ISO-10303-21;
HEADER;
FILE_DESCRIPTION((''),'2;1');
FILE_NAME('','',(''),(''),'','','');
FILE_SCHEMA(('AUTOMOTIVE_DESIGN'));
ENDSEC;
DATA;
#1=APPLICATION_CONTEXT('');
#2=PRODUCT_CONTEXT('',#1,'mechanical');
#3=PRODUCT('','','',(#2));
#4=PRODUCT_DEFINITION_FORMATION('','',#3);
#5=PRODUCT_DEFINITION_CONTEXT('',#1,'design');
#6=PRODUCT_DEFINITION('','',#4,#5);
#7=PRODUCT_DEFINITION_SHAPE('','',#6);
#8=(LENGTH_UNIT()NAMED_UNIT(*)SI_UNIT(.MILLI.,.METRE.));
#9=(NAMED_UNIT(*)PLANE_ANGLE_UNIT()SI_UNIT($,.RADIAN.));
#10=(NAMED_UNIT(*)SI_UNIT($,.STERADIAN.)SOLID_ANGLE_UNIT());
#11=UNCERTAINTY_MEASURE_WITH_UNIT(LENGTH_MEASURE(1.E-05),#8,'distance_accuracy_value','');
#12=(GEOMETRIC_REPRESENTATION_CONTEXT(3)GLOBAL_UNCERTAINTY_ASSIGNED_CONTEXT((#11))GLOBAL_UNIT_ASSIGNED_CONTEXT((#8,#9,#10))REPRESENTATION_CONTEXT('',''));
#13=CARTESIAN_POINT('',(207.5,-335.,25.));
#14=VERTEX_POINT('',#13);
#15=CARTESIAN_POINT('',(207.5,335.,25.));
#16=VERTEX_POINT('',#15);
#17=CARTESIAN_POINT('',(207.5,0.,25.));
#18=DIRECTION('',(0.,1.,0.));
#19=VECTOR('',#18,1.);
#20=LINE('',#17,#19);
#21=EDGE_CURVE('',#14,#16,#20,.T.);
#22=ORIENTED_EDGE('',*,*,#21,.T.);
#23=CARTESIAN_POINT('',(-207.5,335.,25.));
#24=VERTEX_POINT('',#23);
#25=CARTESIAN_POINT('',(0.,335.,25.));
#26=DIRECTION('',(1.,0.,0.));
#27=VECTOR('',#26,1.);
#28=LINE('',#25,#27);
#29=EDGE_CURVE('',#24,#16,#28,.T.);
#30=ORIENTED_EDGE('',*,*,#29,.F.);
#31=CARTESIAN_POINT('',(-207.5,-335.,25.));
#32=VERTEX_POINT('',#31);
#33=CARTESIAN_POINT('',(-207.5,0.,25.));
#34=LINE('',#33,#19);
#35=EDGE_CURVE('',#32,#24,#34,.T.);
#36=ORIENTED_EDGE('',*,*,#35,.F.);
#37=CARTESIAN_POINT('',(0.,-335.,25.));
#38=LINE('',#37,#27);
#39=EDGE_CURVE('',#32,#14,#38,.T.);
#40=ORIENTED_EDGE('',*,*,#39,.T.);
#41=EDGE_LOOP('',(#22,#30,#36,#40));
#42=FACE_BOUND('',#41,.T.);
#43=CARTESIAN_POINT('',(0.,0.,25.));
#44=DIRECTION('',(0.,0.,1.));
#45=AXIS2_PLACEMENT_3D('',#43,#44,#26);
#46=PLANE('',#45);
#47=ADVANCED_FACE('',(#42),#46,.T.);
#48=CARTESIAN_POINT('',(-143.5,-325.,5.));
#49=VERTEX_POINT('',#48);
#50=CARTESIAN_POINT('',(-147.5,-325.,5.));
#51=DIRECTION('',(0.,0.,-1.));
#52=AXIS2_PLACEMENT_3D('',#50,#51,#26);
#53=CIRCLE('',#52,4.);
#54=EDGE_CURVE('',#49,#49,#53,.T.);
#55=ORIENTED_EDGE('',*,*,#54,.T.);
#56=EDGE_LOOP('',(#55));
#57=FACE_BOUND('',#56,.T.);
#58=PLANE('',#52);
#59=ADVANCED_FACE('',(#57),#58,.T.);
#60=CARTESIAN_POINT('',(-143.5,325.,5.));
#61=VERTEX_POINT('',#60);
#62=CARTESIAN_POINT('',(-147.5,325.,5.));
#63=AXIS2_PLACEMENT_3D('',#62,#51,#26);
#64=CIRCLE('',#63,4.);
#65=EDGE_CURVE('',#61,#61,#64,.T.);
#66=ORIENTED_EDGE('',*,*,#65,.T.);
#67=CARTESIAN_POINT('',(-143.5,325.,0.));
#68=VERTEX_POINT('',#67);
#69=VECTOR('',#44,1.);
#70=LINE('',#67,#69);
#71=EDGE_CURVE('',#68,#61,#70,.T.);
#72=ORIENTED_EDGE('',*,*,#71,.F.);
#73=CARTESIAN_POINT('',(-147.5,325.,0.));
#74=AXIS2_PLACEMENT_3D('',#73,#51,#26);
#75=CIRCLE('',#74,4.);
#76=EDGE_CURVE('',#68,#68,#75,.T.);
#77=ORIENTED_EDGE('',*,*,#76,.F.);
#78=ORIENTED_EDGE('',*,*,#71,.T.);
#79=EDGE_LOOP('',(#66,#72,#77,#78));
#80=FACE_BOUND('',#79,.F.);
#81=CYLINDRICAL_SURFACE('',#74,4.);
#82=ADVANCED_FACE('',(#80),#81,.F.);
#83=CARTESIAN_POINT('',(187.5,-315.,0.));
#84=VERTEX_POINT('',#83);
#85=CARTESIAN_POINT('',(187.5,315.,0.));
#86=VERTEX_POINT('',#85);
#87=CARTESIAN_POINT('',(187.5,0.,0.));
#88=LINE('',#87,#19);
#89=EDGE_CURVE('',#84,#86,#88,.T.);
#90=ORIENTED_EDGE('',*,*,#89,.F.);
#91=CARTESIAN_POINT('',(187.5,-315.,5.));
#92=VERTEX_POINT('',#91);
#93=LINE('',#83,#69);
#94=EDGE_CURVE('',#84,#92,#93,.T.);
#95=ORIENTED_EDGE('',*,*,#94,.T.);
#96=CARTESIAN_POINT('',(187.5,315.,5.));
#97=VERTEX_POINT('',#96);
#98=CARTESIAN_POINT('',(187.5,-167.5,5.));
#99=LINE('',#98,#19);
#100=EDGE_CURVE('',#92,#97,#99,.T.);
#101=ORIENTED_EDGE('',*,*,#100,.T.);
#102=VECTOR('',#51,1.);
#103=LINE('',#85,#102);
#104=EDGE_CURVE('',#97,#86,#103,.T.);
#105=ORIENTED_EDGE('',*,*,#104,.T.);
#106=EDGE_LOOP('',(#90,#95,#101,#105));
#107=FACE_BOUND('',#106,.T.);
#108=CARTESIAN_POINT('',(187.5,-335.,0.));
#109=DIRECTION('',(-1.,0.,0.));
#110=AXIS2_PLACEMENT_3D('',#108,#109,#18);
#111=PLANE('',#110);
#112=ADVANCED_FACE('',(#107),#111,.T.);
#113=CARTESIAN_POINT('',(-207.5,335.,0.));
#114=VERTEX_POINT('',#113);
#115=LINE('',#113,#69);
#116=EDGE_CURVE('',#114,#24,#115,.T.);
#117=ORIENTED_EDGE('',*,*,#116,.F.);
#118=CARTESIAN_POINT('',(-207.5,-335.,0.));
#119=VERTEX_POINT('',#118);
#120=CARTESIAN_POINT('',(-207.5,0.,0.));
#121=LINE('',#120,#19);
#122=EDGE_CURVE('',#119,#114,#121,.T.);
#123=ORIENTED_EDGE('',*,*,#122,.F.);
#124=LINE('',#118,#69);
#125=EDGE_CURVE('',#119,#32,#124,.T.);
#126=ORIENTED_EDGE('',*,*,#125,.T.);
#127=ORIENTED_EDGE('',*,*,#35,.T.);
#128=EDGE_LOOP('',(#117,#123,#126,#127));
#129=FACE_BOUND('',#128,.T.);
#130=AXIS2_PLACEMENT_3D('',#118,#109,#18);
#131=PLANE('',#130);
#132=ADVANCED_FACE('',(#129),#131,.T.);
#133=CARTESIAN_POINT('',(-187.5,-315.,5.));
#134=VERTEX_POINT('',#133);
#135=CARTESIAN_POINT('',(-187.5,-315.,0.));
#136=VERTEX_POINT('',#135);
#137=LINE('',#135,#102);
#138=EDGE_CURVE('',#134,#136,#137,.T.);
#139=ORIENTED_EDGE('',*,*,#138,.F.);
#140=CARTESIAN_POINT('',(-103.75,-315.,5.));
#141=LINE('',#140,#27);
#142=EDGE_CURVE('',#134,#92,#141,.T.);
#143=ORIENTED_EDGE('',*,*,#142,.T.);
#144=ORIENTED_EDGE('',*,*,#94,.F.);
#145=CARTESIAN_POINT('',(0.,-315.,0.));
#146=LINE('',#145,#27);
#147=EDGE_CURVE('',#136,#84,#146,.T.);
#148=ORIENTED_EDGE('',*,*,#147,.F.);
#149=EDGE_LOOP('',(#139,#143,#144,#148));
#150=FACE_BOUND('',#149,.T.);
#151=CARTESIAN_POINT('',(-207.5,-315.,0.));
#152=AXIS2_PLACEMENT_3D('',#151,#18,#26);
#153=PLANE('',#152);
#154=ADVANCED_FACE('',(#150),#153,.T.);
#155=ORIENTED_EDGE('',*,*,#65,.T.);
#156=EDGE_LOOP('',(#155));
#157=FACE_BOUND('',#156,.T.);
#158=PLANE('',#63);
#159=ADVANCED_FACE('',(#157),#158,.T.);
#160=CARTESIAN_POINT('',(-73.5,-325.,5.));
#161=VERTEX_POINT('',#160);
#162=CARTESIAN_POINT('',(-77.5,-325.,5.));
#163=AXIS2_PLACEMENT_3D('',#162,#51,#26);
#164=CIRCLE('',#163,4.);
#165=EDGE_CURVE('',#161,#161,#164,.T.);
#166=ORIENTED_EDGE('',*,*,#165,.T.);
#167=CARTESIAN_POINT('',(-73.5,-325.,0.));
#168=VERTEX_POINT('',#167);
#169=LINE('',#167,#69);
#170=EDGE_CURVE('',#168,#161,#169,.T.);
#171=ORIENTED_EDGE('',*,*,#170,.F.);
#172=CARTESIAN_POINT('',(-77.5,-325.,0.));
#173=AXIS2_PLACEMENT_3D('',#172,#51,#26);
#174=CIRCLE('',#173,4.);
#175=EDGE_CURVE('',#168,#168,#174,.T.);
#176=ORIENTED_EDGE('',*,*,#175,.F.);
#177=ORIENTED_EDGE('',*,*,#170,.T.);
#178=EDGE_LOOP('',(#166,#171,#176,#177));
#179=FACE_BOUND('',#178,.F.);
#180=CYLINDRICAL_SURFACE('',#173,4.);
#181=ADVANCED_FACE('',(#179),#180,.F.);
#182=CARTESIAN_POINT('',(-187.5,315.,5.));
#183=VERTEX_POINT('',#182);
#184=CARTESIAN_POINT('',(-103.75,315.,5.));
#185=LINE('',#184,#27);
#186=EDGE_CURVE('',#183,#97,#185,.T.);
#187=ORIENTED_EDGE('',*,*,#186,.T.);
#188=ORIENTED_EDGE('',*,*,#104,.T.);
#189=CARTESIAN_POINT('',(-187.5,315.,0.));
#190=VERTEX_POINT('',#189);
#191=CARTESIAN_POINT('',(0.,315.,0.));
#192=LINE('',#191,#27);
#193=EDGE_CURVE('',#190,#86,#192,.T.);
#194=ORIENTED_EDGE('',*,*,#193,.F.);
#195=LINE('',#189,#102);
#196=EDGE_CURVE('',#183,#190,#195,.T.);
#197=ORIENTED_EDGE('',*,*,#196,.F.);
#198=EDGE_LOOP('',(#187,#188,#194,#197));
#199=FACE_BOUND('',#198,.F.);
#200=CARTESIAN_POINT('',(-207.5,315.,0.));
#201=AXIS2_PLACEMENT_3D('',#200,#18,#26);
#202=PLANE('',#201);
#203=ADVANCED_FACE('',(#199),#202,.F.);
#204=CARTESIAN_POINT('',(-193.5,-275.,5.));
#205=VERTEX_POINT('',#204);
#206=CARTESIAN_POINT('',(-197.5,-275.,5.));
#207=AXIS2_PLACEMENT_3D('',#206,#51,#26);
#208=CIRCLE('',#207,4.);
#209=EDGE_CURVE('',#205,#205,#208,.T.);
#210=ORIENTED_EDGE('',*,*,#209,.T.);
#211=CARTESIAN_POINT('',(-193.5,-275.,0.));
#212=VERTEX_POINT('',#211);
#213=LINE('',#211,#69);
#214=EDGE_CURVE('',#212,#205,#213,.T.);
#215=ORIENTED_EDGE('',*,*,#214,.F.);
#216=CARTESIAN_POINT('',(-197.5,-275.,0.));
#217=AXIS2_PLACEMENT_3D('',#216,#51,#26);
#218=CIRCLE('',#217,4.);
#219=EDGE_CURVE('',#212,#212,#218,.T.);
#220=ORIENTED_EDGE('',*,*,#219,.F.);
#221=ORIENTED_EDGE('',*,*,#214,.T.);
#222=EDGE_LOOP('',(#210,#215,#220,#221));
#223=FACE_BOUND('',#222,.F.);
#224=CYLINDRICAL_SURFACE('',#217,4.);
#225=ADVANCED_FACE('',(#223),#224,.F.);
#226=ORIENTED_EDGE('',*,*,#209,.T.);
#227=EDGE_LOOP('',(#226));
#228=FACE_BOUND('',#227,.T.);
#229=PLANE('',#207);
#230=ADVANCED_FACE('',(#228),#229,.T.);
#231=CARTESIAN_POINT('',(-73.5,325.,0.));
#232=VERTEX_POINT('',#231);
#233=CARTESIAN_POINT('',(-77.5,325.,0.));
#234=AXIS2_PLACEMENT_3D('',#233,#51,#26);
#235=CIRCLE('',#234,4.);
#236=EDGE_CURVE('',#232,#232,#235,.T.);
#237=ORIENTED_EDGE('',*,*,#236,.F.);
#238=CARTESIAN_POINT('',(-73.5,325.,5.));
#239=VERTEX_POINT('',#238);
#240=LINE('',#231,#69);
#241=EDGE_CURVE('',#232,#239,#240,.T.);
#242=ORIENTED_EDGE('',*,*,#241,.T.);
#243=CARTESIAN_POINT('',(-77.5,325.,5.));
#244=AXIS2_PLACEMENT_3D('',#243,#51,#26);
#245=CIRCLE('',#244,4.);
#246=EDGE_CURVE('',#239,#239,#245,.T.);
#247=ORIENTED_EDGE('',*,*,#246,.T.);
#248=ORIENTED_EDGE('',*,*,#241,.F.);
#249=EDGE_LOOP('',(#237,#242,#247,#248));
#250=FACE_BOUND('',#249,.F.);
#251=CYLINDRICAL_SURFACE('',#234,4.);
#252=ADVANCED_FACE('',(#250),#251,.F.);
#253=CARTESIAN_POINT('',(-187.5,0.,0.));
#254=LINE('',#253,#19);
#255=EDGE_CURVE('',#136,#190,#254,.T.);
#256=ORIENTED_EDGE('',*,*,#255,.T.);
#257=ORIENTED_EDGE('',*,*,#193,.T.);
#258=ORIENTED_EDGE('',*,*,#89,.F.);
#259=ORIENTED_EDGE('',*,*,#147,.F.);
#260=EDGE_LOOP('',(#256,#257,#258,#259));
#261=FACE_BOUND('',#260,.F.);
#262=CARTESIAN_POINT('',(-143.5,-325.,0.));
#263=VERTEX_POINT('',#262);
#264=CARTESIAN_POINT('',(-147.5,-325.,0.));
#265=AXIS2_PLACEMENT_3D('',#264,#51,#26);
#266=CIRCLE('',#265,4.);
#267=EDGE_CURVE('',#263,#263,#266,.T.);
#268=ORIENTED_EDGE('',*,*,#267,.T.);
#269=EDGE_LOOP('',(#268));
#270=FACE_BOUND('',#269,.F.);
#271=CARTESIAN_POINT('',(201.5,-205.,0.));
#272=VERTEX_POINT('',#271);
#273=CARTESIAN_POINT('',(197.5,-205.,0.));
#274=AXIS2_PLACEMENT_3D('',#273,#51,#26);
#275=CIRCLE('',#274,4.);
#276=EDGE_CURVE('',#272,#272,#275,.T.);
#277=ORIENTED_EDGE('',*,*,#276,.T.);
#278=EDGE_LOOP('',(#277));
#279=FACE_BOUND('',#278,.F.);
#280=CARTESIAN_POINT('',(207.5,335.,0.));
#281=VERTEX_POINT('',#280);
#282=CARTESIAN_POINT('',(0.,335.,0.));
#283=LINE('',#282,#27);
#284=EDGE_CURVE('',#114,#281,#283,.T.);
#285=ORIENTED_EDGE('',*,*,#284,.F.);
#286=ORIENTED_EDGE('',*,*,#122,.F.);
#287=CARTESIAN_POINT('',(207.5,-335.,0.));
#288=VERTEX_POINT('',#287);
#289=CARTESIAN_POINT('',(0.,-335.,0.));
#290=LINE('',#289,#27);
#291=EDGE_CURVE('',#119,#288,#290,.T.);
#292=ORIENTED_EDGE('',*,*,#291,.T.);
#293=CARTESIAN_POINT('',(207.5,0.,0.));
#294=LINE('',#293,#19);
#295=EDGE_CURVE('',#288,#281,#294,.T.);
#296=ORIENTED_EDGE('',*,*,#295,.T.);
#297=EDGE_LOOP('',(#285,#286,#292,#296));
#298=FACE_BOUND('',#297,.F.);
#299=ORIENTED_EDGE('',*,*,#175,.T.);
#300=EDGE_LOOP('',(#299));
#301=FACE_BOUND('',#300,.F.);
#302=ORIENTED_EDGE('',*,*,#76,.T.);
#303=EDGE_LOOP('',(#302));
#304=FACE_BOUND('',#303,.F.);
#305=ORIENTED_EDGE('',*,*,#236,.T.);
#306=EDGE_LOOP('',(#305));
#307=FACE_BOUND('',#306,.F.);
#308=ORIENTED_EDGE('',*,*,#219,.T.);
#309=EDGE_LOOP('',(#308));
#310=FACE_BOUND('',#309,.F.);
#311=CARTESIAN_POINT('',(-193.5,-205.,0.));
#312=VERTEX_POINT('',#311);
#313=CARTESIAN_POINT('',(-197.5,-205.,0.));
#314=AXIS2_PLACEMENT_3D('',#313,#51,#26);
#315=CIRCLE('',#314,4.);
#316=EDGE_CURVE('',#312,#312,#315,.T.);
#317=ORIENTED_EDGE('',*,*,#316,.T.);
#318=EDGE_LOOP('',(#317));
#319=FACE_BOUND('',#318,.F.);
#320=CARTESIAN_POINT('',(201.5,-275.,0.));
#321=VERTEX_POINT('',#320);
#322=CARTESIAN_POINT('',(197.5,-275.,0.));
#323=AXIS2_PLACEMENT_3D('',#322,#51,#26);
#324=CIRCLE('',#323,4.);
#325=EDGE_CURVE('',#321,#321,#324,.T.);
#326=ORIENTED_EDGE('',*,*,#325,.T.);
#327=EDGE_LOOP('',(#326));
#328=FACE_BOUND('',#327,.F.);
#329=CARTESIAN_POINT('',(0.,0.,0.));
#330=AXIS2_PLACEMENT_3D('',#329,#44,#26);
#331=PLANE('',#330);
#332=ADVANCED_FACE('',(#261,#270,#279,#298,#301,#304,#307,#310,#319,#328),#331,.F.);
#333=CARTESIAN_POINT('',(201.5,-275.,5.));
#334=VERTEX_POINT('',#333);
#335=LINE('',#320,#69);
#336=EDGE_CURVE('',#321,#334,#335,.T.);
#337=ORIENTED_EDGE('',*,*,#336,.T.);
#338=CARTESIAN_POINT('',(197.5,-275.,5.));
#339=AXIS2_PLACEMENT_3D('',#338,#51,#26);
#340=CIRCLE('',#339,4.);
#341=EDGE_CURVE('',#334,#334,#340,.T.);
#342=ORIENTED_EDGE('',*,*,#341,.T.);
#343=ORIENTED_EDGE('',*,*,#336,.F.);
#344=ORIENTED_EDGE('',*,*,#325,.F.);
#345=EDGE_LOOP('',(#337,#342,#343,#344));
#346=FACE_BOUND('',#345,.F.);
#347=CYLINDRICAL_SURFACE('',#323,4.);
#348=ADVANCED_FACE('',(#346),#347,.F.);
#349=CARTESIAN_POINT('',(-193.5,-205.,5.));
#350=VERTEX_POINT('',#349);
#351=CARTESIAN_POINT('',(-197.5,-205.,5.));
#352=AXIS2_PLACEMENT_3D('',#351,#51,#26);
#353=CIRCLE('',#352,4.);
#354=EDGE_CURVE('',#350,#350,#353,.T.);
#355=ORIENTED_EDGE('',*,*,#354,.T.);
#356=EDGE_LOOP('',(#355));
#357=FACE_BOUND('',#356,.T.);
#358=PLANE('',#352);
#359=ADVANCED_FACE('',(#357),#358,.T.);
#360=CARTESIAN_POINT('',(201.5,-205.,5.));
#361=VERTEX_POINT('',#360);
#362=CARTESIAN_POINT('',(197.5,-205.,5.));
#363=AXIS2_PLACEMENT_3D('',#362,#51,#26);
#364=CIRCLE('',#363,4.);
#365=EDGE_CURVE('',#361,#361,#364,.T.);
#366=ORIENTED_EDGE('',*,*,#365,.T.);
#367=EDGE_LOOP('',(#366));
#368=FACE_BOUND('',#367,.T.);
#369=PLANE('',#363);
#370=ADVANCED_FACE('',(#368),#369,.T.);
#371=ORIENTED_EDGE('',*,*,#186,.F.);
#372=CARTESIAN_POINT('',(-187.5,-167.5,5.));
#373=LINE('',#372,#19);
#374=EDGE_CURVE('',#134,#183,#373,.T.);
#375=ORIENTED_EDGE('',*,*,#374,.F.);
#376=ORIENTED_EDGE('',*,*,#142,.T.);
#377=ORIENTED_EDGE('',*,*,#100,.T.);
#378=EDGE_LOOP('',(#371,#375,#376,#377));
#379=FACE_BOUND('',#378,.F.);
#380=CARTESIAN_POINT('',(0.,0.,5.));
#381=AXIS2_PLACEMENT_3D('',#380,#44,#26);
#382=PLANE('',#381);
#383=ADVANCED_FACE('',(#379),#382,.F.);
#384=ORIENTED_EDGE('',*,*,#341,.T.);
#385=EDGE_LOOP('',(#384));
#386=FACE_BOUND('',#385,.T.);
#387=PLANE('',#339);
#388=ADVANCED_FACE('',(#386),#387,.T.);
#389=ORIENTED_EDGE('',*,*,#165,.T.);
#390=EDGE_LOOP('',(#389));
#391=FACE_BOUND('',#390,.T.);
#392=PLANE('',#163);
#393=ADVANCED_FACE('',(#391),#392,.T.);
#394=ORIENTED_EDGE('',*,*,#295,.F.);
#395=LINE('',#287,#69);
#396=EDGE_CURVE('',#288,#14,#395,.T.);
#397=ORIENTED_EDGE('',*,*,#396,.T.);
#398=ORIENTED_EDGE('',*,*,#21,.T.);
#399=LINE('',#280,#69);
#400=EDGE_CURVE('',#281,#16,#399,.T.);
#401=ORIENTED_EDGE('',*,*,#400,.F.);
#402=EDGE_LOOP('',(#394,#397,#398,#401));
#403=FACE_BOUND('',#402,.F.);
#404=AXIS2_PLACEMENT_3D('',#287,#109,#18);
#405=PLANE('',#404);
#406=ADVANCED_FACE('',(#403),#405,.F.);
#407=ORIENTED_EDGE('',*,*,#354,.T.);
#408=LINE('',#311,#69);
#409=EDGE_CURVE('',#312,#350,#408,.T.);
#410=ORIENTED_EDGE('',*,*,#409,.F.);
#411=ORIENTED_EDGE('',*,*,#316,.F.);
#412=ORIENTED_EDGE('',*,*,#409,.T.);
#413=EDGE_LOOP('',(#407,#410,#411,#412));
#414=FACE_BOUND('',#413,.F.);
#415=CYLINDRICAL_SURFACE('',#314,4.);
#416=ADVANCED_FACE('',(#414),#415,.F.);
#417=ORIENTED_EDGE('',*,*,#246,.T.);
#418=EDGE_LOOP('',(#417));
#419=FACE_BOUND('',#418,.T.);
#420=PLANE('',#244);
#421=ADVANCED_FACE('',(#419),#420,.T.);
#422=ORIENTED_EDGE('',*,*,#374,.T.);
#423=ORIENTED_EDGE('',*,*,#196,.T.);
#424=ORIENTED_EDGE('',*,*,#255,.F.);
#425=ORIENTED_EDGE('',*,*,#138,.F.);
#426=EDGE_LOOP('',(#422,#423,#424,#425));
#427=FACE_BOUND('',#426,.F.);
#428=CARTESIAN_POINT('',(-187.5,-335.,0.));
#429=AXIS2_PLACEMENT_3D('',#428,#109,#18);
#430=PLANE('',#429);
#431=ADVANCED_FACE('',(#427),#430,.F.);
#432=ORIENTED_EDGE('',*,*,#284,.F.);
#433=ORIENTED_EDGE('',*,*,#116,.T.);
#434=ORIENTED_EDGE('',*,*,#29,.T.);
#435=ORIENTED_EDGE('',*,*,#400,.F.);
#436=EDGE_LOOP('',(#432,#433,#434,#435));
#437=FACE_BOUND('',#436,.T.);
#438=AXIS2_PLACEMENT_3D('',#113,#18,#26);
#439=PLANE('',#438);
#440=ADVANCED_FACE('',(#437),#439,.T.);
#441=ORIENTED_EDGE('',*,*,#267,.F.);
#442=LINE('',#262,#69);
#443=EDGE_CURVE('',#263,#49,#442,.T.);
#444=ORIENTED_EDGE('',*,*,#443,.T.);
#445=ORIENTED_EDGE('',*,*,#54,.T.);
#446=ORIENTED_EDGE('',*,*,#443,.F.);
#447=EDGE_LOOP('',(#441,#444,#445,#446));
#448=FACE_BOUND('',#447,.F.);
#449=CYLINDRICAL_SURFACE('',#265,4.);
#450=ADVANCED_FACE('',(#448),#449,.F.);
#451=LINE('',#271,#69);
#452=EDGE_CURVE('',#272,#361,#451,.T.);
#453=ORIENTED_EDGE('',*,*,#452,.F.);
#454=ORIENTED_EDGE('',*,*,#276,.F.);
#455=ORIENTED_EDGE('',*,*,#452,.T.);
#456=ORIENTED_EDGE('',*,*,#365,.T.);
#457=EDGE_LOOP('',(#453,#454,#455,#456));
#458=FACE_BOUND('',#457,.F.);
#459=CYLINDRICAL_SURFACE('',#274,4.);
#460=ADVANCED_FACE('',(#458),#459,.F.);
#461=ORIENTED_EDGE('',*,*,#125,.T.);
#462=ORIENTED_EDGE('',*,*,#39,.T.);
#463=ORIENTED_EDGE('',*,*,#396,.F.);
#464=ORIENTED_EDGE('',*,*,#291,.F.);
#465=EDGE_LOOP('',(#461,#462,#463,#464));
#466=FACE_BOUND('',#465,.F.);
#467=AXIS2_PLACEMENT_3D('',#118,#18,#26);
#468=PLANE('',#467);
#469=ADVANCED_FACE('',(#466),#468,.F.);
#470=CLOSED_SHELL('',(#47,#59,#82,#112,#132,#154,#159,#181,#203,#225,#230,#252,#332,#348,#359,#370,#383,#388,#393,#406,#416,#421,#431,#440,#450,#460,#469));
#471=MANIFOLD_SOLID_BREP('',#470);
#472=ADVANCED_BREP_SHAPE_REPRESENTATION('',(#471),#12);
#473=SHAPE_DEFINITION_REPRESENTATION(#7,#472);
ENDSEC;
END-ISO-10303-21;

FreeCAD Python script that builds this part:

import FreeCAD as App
import Part
import Sketcher

V = App.Vector


def faces_at(feature, points):
    """Names of the faces that lie closest to the given points."""
    faces = feature.Shape.Faces
    near = lambda p: min(range(len(faces)), key=lambda i: faces[i].distToShape(Part.Vertex(*p))[0])
    return sorted({f"Face{near(p) + 1}" for p in points})

doc = App.newDocument("Part")
params = doc.addObject("Spreadsheet::Sheet", "Params")
for row, (alias, value) in enumerate([
    ("sketch1_width", "415 mm"),
    ("sketch1_height", "670 mm"),
    ("pad1_length", "25 mm"),
    ("thickness_wall", "20 mm"),
    ("sketch2_diameter", "8 mm"),
    ("pocket1_length", "5 mm"),
], start=1):
    params.set(f"A{row}", alias)
    params.set(f"B{row}", "=" + value)
    params.setAlias(f"B{row}", alias)

body = doc.addObject("PartDesign::Body", "Body")

sketch1 = body.newObject("Sketcher::SketchObject", "Sketch")
sketch1.AttachmentSupport = (doc.getObject("XY_Plane"), [""])
sketch1.MapMode = "FlatFace"
sketch1.addGeometry([
    Part.LineSegment(V(-208, 335, 0), V(-208, -335, 0)),
    Part.LineSegment(V(-208, -335, 0), V(208, -335, 0)),
    Part.LineSegment(V(208, -335, 0), V(208, 335, 0)),
    Part.LineSegment(V(208, 335, 0), V(-208, 335, 0)),
], False)
sketch1.addConstraint([
    Sketcher.Constraint("Coincident", 0, 2, 1, 1),
    Sketcher.Constraint("Coincident", 1, 2, 2, 1),
    Sketcher.Constraint("Coincident", 2, 2, 3, 1),
    Sketcher.Constraint("Coincident", 3, 2, 0, 1),
    Sketcher.Constraint("Vertical", 0),
    Sketcher.Constraint("Horizontal", 1),
    Sketcher.Constraint("Vertical", 2),
    Sketcher.Constraint("Horizontal", 3),
    Sketcher.Constraint("Symmetric", 0, 2, 2, 2, -1, 1),
    Sketcher.Constraint("DistanceX", 1, 1, 1, 2, 415.0),
    Sketcher.Constraint("DistanceY", 0, 2, 0, 1, 670.0),
])
sketch1.setExpression("Constraints[9]", "Params.sketch1_width")
sketch1.setExpression("Constraints[10]", "Params.sketch1_height")
pad1 = body.newObject("PartDesign::Pad", "Pad")
pad1.Profile = sketch1
pad1.setExpression("Length", "Params.pad1_length")
doc.recompute()

thickness = body.newObject("PartDesign::Thickness", "Thickness")
thickness.Base = (pad1, faces_at(pad1, [(0, 0, 0)]))
thickness.setExpression("Value", "Params.thickness_wall")
thickness.Reversed = True
thickness.Join = "Arc"

sketch2 = body.newObject("Sketcher::SketchObject", "Sketch001")
sketch2.AttachmentSupport = (doc.getObject("XY_Plane"), [""])
sketch2.MapMode = "FlatFace"
sketch2.addGeometry([
    Part.Circle(V(-197.5, -275, 0), V(0, 0, 1), 4),
    Part.Circle(V(-197.5, -205, 0), V(0, 0, 1), 4),
    Part.Circle(V(197.5, -275, 0), V(0, 0, 1), 4),
    Part.Circle(V(197.5, -205, 0), V(0, 0, 1), 4),
    Part.Circle(V(-147.5, -325, 0), V(0, 0, 1), 4),
    Part.Circle(V(-77.5, -325, 0), V(0, 0, 1), 4),
    Part.Circle(V(-77.5, 325, 0), V(0, 0, 1), 4),
    Part.Circle(V(-147.5, 325, 0), V(0, 0, 1), 4),
], False)
sketch2.addConstraint([
    Sketcher.Constraint("Equal", 0, 1),
    Sketcher.Constraint("Equal", 1, 2),
    Sketcher.Constraint("Equal", 2, 3),
    Sketcher.Constraint("Equal", 3, 4),
    Sketcher.Constraint("Equal", 4, 5),
    Sketcher.Constraint("Equal", 5, 6),
    Sketcher.Constraint("Equal", 6, 7),
    Sketcher.Constraint("Symmetric", 0, 3, 2, 3, -2),
    Sketcher.Constraint("Symmetric", 1, 3, 3, 3, -2),
    Sketcher.Constraint("Symmetric", 5, 3, 6, 3, -1),
    Sketcher.Constraint("Symmetric", 4, 3, 7, 3, -1),
    Sketcher.Constraint("Horizontal", 4, 3, 5, 3),
    Sketcher.Constraint("Vertical", 0, 3, 1, 3),
    Sketcher.Constraint("Diameter", 0, 8.0),
    Sketcher.Constraint("DistanceY", 0, 3, -1, 1, 275.0),
    Sketcher.Constraint("DistanceY", 1, 3, -1, 1, 205.0),
    Sketcher.Constraint("DistanceY", 4, 3, -1, 1, 325.0),
    Sketcher.Constraint("DistanceX", 0, 3, 2, 3, 395.0),
    Sketcher.Constraint("DistanceX", 0, 3, 4, 3, 50.0),
    Sketcher.Constraint("DistanceX", 4, 3, 5, 3, 70.0),
])
sketch2.setExpression("Constraints[13]", "Params.sketch2_diameter")
pocket1 = body.newObject("PartDesign::Pocket", "Pocket")
pocket1.Profile = sketch2
pocket1.setExpression("Length", "Params.pocket1_length")
pocket1.Reversed = True

doc.recompute()
